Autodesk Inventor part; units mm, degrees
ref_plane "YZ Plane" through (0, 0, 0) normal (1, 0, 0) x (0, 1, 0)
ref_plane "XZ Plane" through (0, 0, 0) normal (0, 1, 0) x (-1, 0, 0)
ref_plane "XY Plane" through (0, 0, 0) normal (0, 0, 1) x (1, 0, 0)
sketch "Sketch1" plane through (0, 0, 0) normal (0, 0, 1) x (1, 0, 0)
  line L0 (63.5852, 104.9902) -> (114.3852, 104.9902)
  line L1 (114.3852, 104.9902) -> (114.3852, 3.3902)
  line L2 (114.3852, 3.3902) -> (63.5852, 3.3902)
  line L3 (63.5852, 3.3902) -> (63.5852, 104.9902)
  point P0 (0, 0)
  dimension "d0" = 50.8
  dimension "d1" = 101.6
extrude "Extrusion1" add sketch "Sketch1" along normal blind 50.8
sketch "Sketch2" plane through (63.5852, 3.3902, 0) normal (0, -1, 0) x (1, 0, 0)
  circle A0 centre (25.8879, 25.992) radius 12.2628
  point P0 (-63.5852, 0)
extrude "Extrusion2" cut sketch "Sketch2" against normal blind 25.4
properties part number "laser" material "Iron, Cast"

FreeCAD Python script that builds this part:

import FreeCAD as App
import Part
import Sketcher

V = App.Vector
Q = App.Units.Quantity

doc = App.newDocument("Part")
body = doc.addObject("PartDesign::Body", "Body")

# Sketch on XY plane
sketch1 = doc.addObject("Sketcher::SketchObject", "Sketch")
body.addObject(sketch1)
sketch1.AttachmentSupport = (doc.XY_Plane, [""])
sketch1.MapMode = "FlatFace"
sketch1.addGeometry([
    Part.LineSegment(V(114, 105, 0), V(64, 105, 0)),
    Part.LineSegment(V(64, 105, 0), V(64, 3, 0)),
    Part.LineSegment(V(64, 3, 0), V(114, 3, 0)),
    Part.LineSegment(V(114, 3, 0), V(114, 105, 0)),
], False)
sketch1.addConstraint([
    Sketcher.Constraint("Coincident", 0, 2, 1, 1),
    Sketcher.Constraint("Coincident", 1, 2, 2, 1),
    Sketcher.Constraint("Coincident", 2, 2, 3, 1),
    Sketcher.Constraint("Coincident", 3, 2, 0, 1),
    Sketcher.Constraint("Horizontal", 0),
    Sketcher.Constraint("Vertical", 1),
    Sketcher.Constraint("Horizontal", 2),
    Sketcher.Constraint("Vertical", 3),
    Sketcher.Constraint("DistanceX", 0, 2, 0, 1, Q("2 in")),
    Sketcher.Constraint("DistanceY", 1, 2, 1, 1, Q("4 in")),
    Sketcher.Constraint("DistanceX", -1, 1, 0, 2, Q("63.5852 mm")),
    Sketcher.Constraint("DistanceY", -1, 1, 0, 2, Q("104.9902 mm")),
])
pad1 = doc.addObject("PartDesign::Pad", "Pad")
body.addObject(pad1)
pad1.Profile = sketch1
pad1.Length = Q("2 in")

# Sketch on XZ plane
sketch2 = doc.addObject("Sketcher::SketchObject", "Sketch001")
body.addObject(sketch2)
sketch2.AttachmentSupport = (doc.XZ_Plane, [""])
sketch2.MapMode = "FlatFace"
sketch2.AttachmentOffset = App.Placement(V(0, 0, -3.3902), App.Rotation())
sketch2.addGeometry(Part.Circle(V(89, 26, 0), V(0, 0, 1), 12), False)
sketch2.addConstraint([
    Sketcher.Constraint("Diameter", 0, Q("24.5256 mm")),
    Sketcher.Constraint("DistanceY", -1, 1, 0, 3, Q("1.0233 in")),
    Sketcher.Constraint("DistanceX", -1, 1, 0, 3, Q("89.473 mm")),
])
pocket1 = doc.addObject("PartDesign::Pocket", "Pocket")
body.addObject(pocket1)
pocket1.Profile = sketch2
pocket1.Length = Q("1 in")

doc.recompute()
